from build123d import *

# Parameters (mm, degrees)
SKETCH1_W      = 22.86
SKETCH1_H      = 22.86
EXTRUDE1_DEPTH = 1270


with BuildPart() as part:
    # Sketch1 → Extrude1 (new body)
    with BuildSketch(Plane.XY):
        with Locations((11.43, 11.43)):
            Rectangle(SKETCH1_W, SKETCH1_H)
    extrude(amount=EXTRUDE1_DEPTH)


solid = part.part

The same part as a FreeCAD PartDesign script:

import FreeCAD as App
import Part
import Sketcher
from FreeCAD import Vector
Q = App.Units.Quantity


def add_polygon(sketch, points):
    """Adds a closed chain of lines whose ends are joined by coincident constraints."""
    first, n = sketch.GeometryCount, len(points)
    for a, b in zip(points, points[1:] + points[:1]):
        sketch.addGeometry(Part.LineSegment(App.Vector(*a, 0), App.Vector(*b, 0)), False)
    for i in range(n):
        sketch.addConstraint(Sketcher.Constraint("Coincident", first + i, 2, first + (i + 1) % n, 1))

doc = App.newDocument("Part")
body = doc.addObject("PartDesign::Body", "Body")

sketch1 = doc.addObject("Sketcher::SketchObject", "Sketch")
body.addObject(sketch1)
sketch1.AttachmentSupport = (doc.XY_Plane, [""])
sketch1.MapMode = "FlatFace"
add_polygon(sketch1, [(0, 23), (0, 0), (23, 0), (23, 23)])
sketch1.addConstraint(Sketcher.Constraint("Vertical", 0))
sketch1.addConstraint(Sketcher.Constraint("Horizontal", 1))
sketch1.addConstraint(Sketcher.Constraint("Vertical", 2))
sketch1.addConstraint(Sketcher.Constraint("Horizontal", 3))
sketch1.addConstraint(Sketcher.Constraint("Coincident", 0, 2, -1, 1))
sketch1.addConstraint(Sketcher.Constraint("Equal", 3, 0))
sketch1.addConstraint(Sketcher.Constraint("DistanceX", 1, 1, 1, 2, Q("0.9 in")))
pad1 = doc.addObject("PartDesign::Pad", "Pad")
body.addObject(pad1)
pad1.Profile = sketch1
pad1.Length = Q("50 in")

doc.recompute()
